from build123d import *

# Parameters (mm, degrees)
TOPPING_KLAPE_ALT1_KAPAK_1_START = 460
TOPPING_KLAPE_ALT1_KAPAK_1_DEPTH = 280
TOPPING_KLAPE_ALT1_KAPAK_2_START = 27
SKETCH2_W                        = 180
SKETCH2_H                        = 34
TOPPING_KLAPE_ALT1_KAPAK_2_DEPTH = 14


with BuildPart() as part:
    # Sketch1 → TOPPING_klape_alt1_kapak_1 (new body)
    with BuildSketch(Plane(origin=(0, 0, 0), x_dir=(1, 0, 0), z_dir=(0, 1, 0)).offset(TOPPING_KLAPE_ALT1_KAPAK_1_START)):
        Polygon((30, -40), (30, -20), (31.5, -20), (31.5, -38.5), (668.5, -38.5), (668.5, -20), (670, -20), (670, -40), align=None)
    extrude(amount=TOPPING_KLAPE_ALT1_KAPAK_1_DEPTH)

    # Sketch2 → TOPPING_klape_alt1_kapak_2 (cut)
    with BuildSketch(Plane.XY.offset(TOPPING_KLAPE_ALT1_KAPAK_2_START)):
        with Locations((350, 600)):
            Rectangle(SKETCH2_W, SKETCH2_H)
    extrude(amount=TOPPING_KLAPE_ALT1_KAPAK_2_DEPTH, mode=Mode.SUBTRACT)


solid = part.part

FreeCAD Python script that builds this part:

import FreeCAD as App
import Part
import Sketcher
Q = App.Units.Quantity


def add_polygon(sketch, points):
    """Adds a closed chain of lines whose ends are joined by coincident constraints."""
    first, n = sketch.GeometryCount, len(points)
    for a, b in zip(points, points[1:] + points[:1]):
        sketch.addGeometry(Part.LineSegment(App.Vector(*a, 0), App.Vector(*b, 0)), False)
    for i in range(n):
        sketch.addConstraint(Sketcher.Constraint("Coincident", first + i, 2, first + (i + 1) % n, 1))

doc = App.newDocument("Part")
params = doc.addObject("Spreadsheet::Sheet", "Params")
for row, (alias, value) in enumerate([
    ("sketch1_width", "640 mm"),
    ("sketch1_width2", "637 mm"),
    ("sketch1_height", "20 mm"),
    ("sketch1_height2", "18.5 mm"),
    ("pad1_length", "280 mm"),
    ("sketch2_width", "180 mm"),
    ("sketch2_height", "34 mm"),
    ("pocket1_length", "14 mm"),
], start=1):
    params.set(f"A{row}", alias)
    params.set(f"B{row}", "=" + value)
    params.setAlias(f"B{row}", alias)

body = doc.addObject("PartDesign::Body", "Body")

# Sketch on XZ plane
sketch1 = doc.addObject("Sketcher::SketchObject", "Sketch")
body.addObject(sketch1)
sketch1.AttachmentSupport = (doc.XZ_Plane, [""])
sketch1.MapMode = "FlatFace"
sketch1.AttachmentOffset = App.Placement(App.Vector(0, 0, -460), App.Rotation())
add_polygon(sketch1, [(30, 20), (30, 40), (670, 40), (670, 20), (668.5, 20), (668.5, 38.5), (31.5, 38.5), (31.5, 20)])  # lines 0-7
sketch1.addConstraint([
    Sketcher.Constraint("Vertical", 0),
    Sketcher.Constraint("Horizontal", 1),
    Sketcher.Constraint("Vertical", 2),
    Sketcher.Constraint("Horizontal", 3),
    Sketcher.Constraint("Vertical", 4),
    Sketcher.Constraint("Horizontal", 5),
    Sketcher.Constraint("Vertical", 6),
    Sketcher.Constraint("Horizontal", 7),
    Sketcher.Constraint("Horizontal", 3, 2, 6, 2),
    Sketcher.Constraint("Equal", 3, 7),
    Sketcher.Constraint("DistanceX", 1, 1, 1, 2, Q("640 mm")),
    Sketcher.Constraint("DistanceX", 5, 2, 5, 1, Q("637 mm")),
    Sketcher.Constraint("DistanceY", 0, 1, 0, 2, Q("20 mm")),
    Sketcher.Constraint("DistanceY", 4, 1, 4, 2, Q("18.5 mm")),
    Sketcher.Constraint("DistanceX", -1, 1, 0, 2, Q("30 mm")),
    Sketcher.Constraint("DistanceY", -1, 1, 0, 2, Q("40 mm")),
])
sketch1.setExpression("Constraints[18]", "Params.sketch1_width")
sketch1.setExpression("Constraints[19]", "Params.sketch1_width2")
sketch1.setExpression("Constraints[20]", "Params.sketch1_height")
sketch1.setExpression("Constraints[21]", "Params.sketch1_height2")
pad1 = doc.addObject("PartDesign::Pad", "Pad")
body.addObject(pad1)
pad1.Profile = sketch1
pad1.setExpression("Length", "Params.pad1_length")
pad1.Reversed = True

# Sketch on XY plane
sketch2 = doc.addObject("Sketcher::SketchObject", "Sketch001")
body.addObject(sketch2)
sketch2.AttachmentSupport = (doc.XY_Plane, [""])
sketch2.MapMode = "FlatFace"
sketch2.AttachmentOffset = App.Placement(App.Vector(0, 0, 27), App.Rotation())
add_polygon(sketch2, [(260, 617), (260, 583), (440, 583), (440, 617)])  # lines 0-3
sketch2.addConstraint([
    Sketcher.Constraint("Vertical", 0),
    Sketcher.Constraint("Horizontal", 1),
    Sketcher.Constraint("Vertical", 2),
    Sketcher.Constraint("Horizontal", 3),
    Sketcher.Constraint("DistanceX", 1, 1, 1, 2, Q("180 mm")),
    Sketcher.Constraint("DistanceY", 0, 2, 0, 1, Q("34 mm")),
    Sketcher.Constraint("DistanceX", -1, 1, 0, 2, Q("260 mm")),
    Sketcher.Constraint("DistanceY", -1, 1, 0, 2, Q("583 mm")),
])
sketch2.setExpression("Constraints[8]", "Params.sketch2_width")
sketch2.setExpression("Constraints[9]", "Params.sketch2_height")
pocket1 = doc.addObject("PartDesign::Pocket", "Pocket")
body.addObject(pocket1)
pocket1.Profile = sketch2
pocket1.setExpression("Length", "Params.pocket1_length")
pocket1.Reversed = True

doc.recompute()
